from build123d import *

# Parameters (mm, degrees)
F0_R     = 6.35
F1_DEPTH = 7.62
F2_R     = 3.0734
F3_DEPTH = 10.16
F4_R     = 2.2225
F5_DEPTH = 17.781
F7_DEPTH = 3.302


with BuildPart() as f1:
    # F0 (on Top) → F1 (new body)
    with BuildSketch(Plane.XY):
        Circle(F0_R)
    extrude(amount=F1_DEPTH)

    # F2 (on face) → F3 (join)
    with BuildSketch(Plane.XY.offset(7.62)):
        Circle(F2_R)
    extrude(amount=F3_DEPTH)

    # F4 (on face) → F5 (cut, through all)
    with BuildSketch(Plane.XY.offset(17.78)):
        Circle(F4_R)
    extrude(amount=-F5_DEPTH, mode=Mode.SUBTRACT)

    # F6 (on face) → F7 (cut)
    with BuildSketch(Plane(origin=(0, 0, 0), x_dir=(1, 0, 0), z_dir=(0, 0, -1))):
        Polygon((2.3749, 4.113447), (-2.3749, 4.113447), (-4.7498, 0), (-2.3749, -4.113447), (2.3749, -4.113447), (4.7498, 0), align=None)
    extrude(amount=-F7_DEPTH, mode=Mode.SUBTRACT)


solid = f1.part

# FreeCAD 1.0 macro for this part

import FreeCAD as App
import Part
import Sketcher
from FreeCAD import Vector
Q = App.Units.Quantity


def add_polygon(sketch, points):
    """Adds a closed chain of lines whose ends are joined by coincident constraints."""
    first, n = sketch.GeometryCount, len(points)
    for a, b in zip(points, points[1:] + points[:1]):
        sketch.addGeometry(Part.LineSegment(App.Vector(*a, 0), App.Vector(*b, 0)), False)
    for i in range(n):
        sketch.addConstraint(Sketcher.Constraint("Coincident", first + i, 2, first + (i + 1) % n, 1))

doc = App.newDocument("Part")
params = doc.addObject("Spreadsheet::Sheet", "Params")
for row, (alias, value) in enumerate([
    ("sketch1_diameter", "0.5 in"),
    ("pad1_length", "0.3 in"),
    ("sketch2_diameter", "0.242 in"),
    ("pad2_length", "0.4 in"),
    ("sketch3_diameter", "0.175 in"),
    ("sketch4_width", "0.187 in"),
    ("sketch4_length", "0.187 in"),
    ("pocket2_length", "0.13 in"),
], start=1):
    params.set(f"A{row}", alias)
    params.set(f"B{row}", "=" + value)
    params.setAlias(f"B{row}", alias)

body = doc.addObject("PartDesign::Body", "Body")

# Sketch on XY plane
sketch1 = body.newObject("Sketcher::SketchObject", "Sketch")
sketch1.AttachmentSupport = (doc.getObject("XY_Plane"), [""])
sketch1.MapMode = "FlatFace"
sketch1.addGeometry(Part.Circle(Vector(0, 0, 0), Vector(0, 0, 1), 6), False)
sketch1.addConstraint([
    Sketcher.Constraint("Coincident", 0, 3, -1, 1),
    Sketcher.Constraint("Diameter", 0, Q("0.5 in")),
])
sketch1.setExpression("Constraints[1]", "Params.sketch1_diameter")
pad1 = body.newObject("PartDesign::Pad", "Pad")
pad1.Profile = sketch1
pad1.setExpression("Length", "Params.pad1_length")

# Sketch on XY plane
sketch2 = body.newObject("Sketcher::SketchObject", "Sketch001")
sketch2.AttachmentSupport = (doc.getObject("XY_Plane"), [""])
sketch2.MapMode = "FlatFace"
sketch2.AttachmentOffset = App.Placement(Vector(0, 0, 0.3 * 25.4), App.Rotation())
sketch2.addGeometry(Part.Circle(Vector(0, 0, 0), Vector(0, 0, 1), 3.1), False)
sketch2.addConstraint([
    Sketcher.Constraint("Coincident", 0, 3, -1, 1),
    Sketcher.Constraint("Diameter", 0, Q("0.242 in")),
])
sketch2.setExpression("Constraints[1]", "Params.sketch2_diameter")
pad2 = body.newObject("PartDesign::Pad", "Pad001")
pad2.Profile = sketch2
pad2.setExpression("Length", "Params.pad2_length")

# Sketch on XY plane
sketch3 = body.newObject("Sketcher::SketchObject", "Sketch002")
sketch3.AttachmentSupport = (doc.getObject("XY_Plane"), [""])
sketch3.MapMode = "FlatFace"
sketch3.AttachmentOffset = App.Placement(Vector(0, 0, 0.7 * 25.4), App.Rotation())
sketch3.addGeometry(Part.Circle(Vector(0, 0, 0), Vector(0, 0, 1), 2.2), False)
sketch3.addConstraint([
    Sketcher.Constraint("Coincident", 0, 3, -1, 1),
    Sketcher.Constraint("Diameter", 0, Q("0.175 in")),
])
sketch3.setExpression("Constraints[1]", "Params.sketch3_diameter")
pocket1 = body.newObject("PartDesign::Pocket", "Pocket")
pocket1.Profile = sketch3
pocket1.Type = "ThroughAll"

# Sketch on XY plane
sketch4 = body.newObject("Sketcher::SketchObject", "Sketch003")
sketch4.AttachmentSupport = (doc.getObject("XY_Plane"), [""])
sketch4.MapMode = "FlatFace"
add_polygon(sketch4, [(2.4, -4.1), (-2.4, -4.1), (-4.7, 0), (-2.4, 4.1), (2.4, 4.1), (4.7, 0)])  # lines 0-5
sketch4.addConstraint([
    Sketcher.Constraint("Horizontal", 0),
    Sketcher.Constraint("Horizontal", 3),
    Sketcher.Constraint("Symmetric", 0, 2, 3, 2, -1, 1),
    Sketcher.Constraint("Symmetric", 1, 2, 4, 2, -1, 1),
    Sketcher.Constraint("PointOnObject", 1, 2, -1),
    Sketcher.Constraint("Parallel", 2, 5),
    Sketcher.Constraint("Vertical", 0, 2, 2, 2),
    Sketcher.Constraint("Angle", 1, Q("120.000003 deg")),
    Sketcher.Constraint("DistanceX", 0, 2, 0, 1, Q("0.187 in")),
    Sketcher.Constraint("Distance", 1, Q("0.187 in")),
])
sketch4.setExpression("Constraints[14]", "Params.sketch4_width")
sketch4.setExpression("Constraints[15]", "Params.sketch4_length")
pocket2 = body.newObject("PartDesign::Pocket", "Pocket001")
pocket2.Profile = sketch4
pocket2.setExpression("Length", "Params.pocket2_length")
pocket2.Reversed = True

doc.recompute()
